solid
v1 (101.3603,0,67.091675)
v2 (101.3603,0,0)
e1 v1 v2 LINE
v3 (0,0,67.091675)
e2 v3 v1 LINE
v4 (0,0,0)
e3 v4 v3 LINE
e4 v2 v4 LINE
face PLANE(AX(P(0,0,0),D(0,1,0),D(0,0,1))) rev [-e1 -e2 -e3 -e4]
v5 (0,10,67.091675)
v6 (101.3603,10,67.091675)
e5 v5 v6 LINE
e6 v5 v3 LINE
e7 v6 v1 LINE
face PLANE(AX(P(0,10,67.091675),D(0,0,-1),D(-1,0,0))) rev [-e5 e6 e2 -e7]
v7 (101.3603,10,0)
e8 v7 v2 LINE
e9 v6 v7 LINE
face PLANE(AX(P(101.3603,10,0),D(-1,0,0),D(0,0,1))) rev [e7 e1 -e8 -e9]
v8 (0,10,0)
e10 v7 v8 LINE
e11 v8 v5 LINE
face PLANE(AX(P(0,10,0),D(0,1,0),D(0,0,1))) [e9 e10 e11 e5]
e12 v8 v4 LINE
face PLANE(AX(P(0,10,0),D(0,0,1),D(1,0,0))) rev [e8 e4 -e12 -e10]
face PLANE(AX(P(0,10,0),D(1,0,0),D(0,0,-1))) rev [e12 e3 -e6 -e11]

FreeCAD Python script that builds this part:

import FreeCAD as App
import Part
import Sketcher
from FreeCAD import Vector
Q = App.Units.Quantity


def add_polygon(sketch, points):
    """Adds a closed chain of lines whose ends are joined by coincident constraints."""
    first, n = sketch.GeometryCount, len(points)
    for a, b in zip(points, points[1:] + points[:1]):
        sketch.addGeometry(Part.LineSegment(App.Vector(*a, 0), App.Vector(*b, 0)), False)
    for i in range(n):
        sketch.addConstraint(Sketcher.Constraint("Coincident", first + i, 2, first + (i + 1) % n, 1))

doc = App.newDocument("Part")
params = doc.addObject("Spreadsheet::Sheet", "Params")
for row, (alias, value) in enumerate([
    ("pad1_length", "10 mm"),
], start=1):
    params.set(f"A{row}", alias)
    params.set(f"B{row}", "=" + value)
    params.setAlias(f"B{row}", alias)

body = doc.addObject("PartDesign::Body", "Body")

# Sketch on XZ plane
sketch1 = doc.addObject("Sketcher::SketchObject", "Sketch")
body.addObject(sketch1)
sketch1.AttachmentSupport = (doc.XZ_Plane, [""])
sketch1.MapMode = "FlatFace"
add_polygon(sketch1, [(0, 0), (0, 67), (101, 67), (101, 0)])  # lines 0-3
sketch1.addConstraint(Sketcher.Constraint("Vertical", 0))
sketch1.addConstraint(Sketcher.Constraint("Horizontal", 1))
sketch1.addConstraint(Sketcher.Constraint("Vertical", 2))
sketch1.addConstraint(Sketcher.Constraint("Horizontal", 3))
sketch1.addConstraint(Sketcher.Constraint("Coincident", 3, 2, -1, 1))
sketch1.addConstraint(Sketcher.Constraint("DistanceX", 1, 1, 1, 2, Q("101.3603 mm")))
sketch1.addConstraint(Sketcher.Constraint("DistanceY", 0, 1, 0, 2, Q("67.091675 mm")))
pad1 = doc.addObject("PartDesign::Pad", "Pad")
body.addObject(pad1)
pad1.Profile = sketch1
pad1.setExpression("Length", "Params.pad1_length")
pad1.Reversed = True

doc.recompute()
